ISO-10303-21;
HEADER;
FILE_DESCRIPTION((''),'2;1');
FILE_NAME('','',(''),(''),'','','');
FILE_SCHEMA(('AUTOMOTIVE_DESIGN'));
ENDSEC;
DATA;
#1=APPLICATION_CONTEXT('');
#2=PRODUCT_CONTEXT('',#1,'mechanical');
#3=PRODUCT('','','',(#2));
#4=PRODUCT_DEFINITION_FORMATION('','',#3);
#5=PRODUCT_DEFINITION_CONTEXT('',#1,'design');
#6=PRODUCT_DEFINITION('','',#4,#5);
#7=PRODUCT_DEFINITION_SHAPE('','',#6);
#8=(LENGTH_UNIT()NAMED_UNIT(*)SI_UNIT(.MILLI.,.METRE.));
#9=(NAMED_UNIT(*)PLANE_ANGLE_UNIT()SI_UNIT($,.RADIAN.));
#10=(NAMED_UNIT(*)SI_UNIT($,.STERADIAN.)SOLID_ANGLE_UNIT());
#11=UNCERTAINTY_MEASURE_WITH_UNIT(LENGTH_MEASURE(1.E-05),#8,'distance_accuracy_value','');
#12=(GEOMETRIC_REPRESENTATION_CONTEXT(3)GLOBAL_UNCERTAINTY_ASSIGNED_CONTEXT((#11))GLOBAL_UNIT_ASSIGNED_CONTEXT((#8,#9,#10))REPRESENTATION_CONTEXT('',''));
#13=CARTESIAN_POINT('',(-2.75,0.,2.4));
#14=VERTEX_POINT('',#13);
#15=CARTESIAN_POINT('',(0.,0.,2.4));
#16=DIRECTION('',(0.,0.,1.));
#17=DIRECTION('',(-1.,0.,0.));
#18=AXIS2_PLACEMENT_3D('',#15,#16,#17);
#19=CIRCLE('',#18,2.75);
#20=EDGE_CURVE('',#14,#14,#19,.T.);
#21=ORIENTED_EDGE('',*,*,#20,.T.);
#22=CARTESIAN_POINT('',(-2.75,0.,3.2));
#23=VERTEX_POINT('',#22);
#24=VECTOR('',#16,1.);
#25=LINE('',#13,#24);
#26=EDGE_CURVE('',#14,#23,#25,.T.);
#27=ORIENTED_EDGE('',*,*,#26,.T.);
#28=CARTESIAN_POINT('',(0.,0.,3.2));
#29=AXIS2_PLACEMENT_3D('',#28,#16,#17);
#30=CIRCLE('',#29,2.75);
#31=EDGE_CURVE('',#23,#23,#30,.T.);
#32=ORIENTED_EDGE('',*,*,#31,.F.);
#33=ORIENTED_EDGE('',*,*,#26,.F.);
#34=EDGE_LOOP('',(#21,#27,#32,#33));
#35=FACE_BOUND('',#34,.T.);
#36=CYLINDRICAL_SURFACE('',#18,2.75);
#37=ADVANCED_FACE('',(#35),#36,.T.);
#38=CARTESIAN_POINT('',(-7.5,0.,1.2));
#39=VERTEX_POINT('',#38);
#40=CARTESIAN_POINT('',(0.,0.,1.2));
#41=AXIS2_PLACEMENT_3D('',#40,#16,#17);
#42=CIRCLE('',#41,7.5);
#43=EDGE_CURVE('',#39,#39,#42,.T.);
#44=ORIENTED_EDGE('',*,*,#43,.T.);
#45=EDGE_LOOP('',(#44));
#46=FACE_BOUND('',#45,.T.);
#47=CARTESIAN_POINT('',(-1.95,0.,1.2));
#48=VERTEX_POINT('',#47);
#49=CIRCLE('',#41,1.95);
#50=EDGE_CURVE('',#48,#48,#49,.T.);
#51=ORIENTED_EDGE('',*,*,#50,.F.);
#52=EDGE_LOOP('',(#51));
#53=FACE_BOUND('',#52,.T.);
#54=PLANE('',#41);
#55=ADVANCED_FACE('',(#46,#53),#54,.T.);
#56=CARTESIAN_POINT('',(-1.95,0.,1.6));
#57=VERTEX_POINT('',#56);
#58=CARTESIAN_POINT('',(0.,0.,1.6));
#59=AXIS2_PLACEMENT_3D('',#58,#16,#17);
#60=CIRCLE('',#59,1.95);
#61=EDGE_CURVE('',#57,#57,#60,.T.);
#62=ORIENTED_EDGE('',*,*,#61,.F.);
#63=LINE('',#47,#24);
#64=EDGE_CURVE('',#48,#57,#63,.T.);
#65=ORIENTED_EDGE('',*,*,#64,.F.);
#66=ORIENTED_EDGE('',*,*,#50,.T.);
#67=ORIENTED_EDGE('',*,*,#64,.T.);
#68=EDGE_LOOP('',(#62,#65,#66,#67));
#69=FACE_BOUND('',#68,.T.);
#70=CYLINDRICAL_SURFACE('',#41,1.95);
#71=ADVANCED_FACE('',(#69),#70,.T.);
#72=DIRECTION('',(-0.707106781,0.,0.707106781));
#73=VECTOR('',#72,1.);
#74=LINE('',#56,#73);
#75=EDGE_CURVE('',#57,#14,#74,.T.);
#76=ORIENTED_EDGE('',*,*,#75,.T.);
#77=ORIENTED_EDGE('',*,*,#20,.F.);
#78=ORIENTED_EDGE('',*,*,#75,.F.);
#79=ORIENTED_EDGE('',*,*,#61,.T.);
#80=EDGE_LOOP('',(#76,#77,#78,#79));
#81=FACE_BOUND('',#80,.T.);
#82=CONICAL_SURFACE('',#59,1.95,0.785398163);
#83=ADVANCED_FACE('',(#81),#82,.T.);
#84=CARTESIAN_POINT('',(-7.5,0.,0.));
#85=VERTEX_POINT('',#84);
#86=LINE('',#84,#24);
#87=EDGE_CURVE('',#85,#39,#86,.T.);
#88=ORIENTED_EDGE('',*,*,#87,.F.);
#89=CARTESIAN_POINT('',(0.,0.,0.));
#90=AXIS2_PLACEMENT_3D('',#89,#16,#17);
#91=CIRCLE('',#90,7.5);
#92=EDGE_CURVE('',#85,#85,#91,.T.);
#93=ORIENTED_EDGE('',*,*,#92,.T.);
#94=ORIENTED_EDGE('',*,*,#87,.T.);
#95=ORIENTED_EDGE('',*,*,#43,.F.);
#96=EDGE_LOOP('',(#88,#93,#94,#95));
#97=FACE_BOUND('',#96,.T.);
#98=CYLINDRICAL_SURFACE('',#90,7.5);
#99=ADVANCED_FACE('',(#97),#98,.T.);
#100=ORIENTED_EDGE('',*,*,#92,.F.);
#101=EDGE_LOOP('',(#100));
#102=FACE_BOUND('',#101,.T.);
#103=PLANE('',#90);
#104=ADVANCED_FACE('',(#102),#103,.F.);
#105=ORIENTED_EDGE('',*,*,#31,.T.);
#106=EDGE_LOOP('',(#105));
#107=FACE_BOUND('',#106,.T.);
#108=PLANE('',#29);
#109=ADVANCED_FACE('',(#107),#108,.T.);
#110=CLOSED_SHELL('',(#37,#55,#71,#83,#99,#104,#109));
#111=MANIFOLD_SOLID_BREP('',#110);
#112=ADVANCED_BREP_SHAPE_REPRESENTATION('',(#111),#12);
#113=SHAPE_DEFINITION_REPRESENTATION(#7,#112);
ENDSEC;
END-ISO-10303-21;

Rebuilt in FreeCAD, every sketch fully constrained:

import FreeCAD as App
import Part
import Sketcher
Q = App.Units.Quantity


def add_polygon(sketch, points):
    """Adds a closed chain of lines whose ends are joined by coincident constraints."""
    first, n = sketch.GeometryCount, len(points)
    for a, b in zip(points, points[1:] + points[:1]):
        sketch.addGeometry(Part.LineSegment(App.Vector(*a, 0), App.Vector(*b, 0)), False)
    for i in range(n):
        sketch.addConstraint(Sketcher.Constraint("Coincident", first + i, 2, first + (i + 1) % n, 1))

doc = App.newDocument("Part")
body = doc.addObject("PartDesign::Body", "Body")

# Sketch on XZ plane
sketch1 = body.newObject("Sketcher::SketchObject", "Sketch")
sketch1.AttachmentSupport = (doc.getObject("XZ_Plane"), [""])
sketch1.MapMode = "FlatFace"
add_polygon(sketch1, [(-7.5, 0), (0, 0), (0, 3.2), (-2.75, 3.2), (-2.75, 2.4), (-1.95, 1.6), (-1.95, 1.2), (-7.5, 1.2)])  # lines 0-7
sketch1.addConstraint(Sketcher.Constraint("Horizontal", 0))
sketch1.addConstraint(Sketcher.Constraint("Vertical", 1))
sketch1.addConstraint(Sketcher.Constraint("Horizontal", 2))
sketch1.addConstraint(Sketcher.Constraint("Vertical", 3))
sketch1.addConstraint(Sketcher.Constraint("Vertical", 5))
sketch1.addConstraint(Sketcher.Constraint("Horizontal", 6))
sketch1.addConstraint(Sketcher.Constraint("Vertical", 7))
sketch1.addConstraint(Sketcher.Constraint("Coincident", 0, 2, -1, 1))
sketch1.addConstraint(Sketcher.Constraint("Angle", 4, Q("-45 deg")))
sketch1.addConstraint(Sketcher.Constraint("DistanceX", 0, 1, 0, 2, 7.5))
sketch1.addConstraint(Sketcher.Constraint("DistanceY", 1, 1, 1, 2, 3.2))
sketch1.addConstraint(Sketcher.Constraint("DistanceY", 3, 2, 3, 1, 0.8))
sketch1.addConstraint(Sketcher.Constraint("DistanceY", 5, 2, 5, 1, 0.4))
sketch1.addConstraint(Sketcher.Constraint("DistanceY", 7, 2, 7, 1, 1.2))
sketch1.addConstraint(Sketcher.Constraint("DistanceX", 2, 2, 2, 1, 2.75))
revolution = body.newObject("PartDesign::Revolution", "Revolution")
revolution.Profile = sketch1
revolution.ReferenceAxis = (sketch1, ["V_Axis"])
revolution.Angle = 360

doc.recompute()
